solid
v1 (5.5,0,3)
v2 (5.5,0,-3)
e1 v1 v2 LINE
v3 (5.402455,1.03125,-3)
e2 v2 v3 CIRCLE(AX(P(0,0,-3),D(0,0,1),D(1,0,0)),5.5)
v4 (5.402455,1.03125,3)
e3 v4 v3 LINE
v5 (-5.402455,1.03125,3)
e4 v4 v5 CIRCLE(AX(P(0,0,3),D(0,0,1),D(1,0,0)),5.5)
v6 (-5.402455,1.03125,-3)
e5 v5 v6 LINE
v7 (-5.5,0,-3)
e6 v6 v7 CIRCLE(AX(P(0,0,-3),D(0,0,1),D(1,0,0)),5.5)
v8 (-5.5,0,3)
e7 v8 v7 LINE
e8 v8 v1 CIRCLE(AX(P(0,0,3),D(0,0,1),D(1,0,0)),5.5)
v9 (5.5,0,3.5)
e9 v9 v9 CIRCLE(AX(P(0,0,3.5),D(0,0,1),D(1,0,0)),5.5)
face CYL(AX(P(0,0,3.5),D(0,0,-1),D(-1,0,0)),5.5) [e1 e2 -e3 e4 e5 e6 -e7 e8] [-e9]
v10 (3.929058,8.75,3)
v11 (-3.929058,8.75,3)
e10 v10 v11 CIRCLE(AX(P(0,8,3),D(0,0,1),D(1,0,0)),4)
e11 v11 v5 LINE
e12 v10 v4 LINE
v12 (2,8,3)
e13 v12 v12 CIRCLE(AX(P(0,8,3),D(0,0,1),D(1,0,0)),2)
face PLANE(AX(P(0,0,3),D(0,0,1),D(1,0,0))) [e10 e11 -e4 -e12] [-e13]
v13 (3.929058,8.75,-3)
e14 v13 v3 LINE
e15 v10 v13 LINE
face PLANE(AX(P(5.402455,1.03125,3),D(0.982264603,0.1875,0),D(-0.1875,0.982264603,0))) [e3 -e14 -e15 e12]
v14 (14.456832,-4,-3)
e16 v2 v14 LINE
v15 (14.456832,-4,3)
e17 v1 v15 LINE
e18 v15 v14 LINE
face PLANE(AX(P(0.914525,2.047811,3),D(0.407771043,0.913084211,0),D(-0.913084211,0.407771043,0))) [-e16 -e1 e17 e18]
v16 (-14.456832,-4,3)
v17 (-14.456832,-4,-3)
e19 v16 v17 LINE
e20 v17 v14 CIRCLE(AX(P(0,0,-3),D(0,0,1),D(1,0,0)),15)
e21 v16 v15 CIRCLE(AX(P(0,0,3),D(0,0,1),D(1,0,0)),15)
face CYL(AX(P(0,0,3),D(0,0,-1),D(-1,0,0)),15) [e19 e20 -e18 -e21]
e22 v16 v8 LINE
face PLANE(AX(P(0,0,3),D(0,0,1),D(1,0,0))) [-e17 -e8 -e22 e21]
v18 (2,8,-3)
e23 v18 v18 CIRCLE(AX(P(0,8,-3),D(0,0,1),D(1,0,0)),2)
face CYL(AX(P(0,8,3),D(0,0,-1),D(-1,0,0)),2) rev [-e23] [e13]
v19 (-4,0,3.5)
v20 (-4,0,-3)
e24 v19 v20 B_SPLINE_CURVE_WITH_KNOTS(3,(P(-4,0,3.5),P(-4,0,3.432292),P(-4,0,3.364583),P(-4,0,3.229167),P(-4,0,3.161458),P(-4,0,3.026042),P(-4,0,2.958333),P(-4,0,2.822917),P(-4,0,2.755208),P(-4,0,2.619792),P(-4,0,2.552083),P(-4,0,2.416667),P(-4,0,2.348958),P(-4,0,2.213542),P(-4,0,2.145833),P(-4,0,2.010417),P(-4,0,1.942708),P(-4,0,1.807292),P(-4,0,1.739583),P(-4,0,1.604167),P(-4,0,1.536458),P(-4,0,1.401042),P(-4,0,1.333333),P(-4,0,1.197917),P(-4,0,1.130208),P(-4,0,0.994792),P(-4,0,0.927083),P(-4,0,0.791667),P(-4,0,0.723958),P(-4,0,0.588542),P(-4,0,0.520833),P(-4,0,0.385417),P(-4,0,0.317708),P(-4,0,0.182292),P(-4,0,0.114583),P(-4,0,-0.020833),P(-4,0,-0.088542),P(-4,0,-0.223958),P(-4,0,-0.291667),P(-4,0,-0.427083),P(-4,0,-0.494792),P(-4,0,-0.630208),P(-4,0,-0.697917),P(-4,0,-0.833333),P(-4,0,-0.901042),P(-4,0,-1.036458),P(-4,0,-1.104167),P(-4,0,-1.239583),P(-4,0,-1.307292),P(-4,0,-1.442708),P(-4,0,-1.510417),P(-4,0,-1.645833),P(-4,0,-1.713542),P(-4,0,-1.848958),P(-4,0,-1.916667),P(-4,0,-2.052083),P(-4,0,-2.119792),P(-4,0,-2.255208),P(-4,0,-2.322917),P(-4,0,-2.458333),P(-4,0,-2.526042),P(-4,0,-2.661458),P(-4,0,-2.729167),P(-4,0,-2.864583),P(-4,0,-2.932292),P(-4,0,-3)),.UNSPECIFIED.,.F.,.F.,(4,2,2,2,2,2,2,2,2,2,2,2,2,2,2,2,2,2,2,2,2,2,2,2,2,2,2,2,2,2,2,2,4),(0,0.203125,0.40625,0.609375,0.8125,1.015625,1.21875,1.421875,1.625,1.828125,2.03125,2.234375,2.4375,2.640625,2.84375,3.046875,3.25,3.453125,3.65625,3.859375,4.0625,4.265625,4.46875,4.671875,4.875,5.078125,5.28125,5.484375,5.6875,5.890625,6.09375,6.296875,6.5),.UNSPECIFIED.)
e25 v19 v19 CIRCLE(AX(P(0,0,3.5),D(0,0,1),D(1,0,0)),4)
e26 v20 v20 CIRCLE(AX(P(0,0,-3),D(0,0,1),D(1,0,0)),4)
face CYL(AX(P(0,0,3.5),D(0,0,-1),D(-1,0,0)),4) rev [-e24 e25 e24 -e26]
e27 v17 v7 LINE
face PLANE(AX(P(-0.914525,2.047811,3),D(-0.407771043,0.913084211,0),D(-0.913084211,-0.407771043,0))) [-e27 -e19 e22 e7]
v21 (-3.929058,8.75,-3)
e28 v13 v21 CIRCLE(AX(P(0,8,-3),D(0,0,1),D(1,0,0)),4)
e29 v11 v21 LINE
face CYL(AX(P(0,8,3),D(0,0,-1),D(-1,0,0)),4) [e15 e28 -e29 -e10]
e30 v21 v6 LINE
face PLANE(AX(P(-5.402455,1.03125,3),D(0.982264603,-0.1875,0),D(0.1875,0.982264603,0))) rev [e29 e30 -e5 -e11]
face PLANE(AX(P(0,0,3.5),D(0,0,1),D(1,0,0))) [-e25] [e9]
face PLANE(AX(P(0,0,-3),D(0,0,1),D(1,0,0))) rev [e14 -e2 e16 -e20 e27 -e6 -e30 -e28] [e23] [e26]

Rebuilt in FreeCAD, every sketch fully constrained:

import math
import FreeCAD as App
import Part
import Sketcher
from FreeCAD import Vector

doc = App.newDocument("Part")
body = doc.addObject("PartDesign::Body", "Body")

sketch1 = body.newObject("Sketcher::SketchObject", "Sketch")
sketch1.AttachmentSupport = (doc.getObject("XY_Plane"), [""])
sketch1.MapMode = "FlatFace"
sketch1.addGeometry([
    Part.LineSegment(Vector(-6, 0, 0), Vector(-14, -4, 0)),
    Part.ArcOfCircle(Part.Circle(Vector(0, 0, 0), Vector(0, 0, 1), 15), math.radians(-165), math.radians(-15)),
    Part.LineSegment(Vector(14, -4, 0), Vector(6, 0, 0)),
    Part.ArcOfCircle(Part.Circle(Vector(0, 0, 0), Vector(0, 0, 1), 6), math.radians(180), math.radians(360)),
], False)
sketch1.addConstraint([
    Sketcher.Constraint("Coincident", 0, 2, 1, 1),
    Sketcher.Constraint("Coincident", 1, 2, 2, 1),
    Sketcher.Constraint("Coincident", 2, 2, 3, 2),
    Sketcher.Constraint("Coincident", 3, 1, 0, 1),
    Sketcher.Constraint("Coincident", 1, 3, -1, 1),
    Sketcher.Constraint("Coincident", 3, 3, -1, 1),
    Sketcher.Constraint("PointOnObject", 2, 2, -1),
    Sketcher.Constraint("PointOnObject", 3, 1, -1),
    Sketcher.Constraint("Horizontal", 0, 2, 1, 2),
    Sketcher.Constraint("Radius", 1, 15.0),
    Sketcher.Constraint("Radius", 3, 5.5),
    Sketcher.Constraint("DistanceY", 0, 2, -1, 1, 4.0),
])
pad1 = body.newObject("PartDesign::Pad", "Pad")
pad1.Profile = sketch1
pad1.Length = 6
pad1.Midplane = True
body2 = doc.addObject("PartDesign::Body", "Body001")

sketch2 = body2.newObject("Sketcher::SketchObject", "Sketch001")
sketch2.AttachmentSupport = (doc.getObject("XY_Plane001"), [""])
sketch2.MapMode = "FlatFace"
sketch2.addGeometry([
    Part.LineSegment(Vector(-3.9, 8.8, 0), Vector(-5.4, 1, 0)),
    Part.ArcOfCircle(Part.Circle(Vector(0, 0, 0), Vector(0, 0, 1), 5.5), math.radians(11), math.radians(169)),
    Part.LineSegment(Vector(5.4, 1, 0), Vector(3.9, 8.8, 0)),
    Part.ArcOfCircle(Part.Circle(Vector(0, 8, 0), Vector(0, 0, 1), 4), math.radians(11), math.radians(169)),
    Part.Circle(Vector(0, 8, 0), Vector(0, 0, 1), 2),
], False)
sketch2.addConstraint([
    Sketcher.Constraint("Tangent", 0, 2, 1, 2),
    Sketcher.Constraint("Tangent", 1, 1, 2, 1),
    Sketcher.Constraint("Tangent", 2, 2, 3, 1),
    Sketcher.Constraint("Tangent", 3, 2, 0, 1),
    Sketcher.Constraint("Coincident", 1, 3, -1, 1),
    Sketcher.Constraint("Coincident", 4, 3, 3, 3),
    Sketcher.Constraint("PointOnObject", 3, 3, -2),
    Sketcher.Constraint("Diameter", 4, 4.0),
    Sketcher.Constraint("Radius", 3, 4.0),
    Sketcher.Constraint("Radius", 1, 5.5),
    Sketcher.Constraint("DistanceY", -1, 1, 3, 3, 8.0),
])
pad2 = body2.newObject("PartDesign::Pad", "Pad001")
pad2.Profile = sketch2
pad2.Length = 6
pad2.Midplane = True
body.AllowCompound = True
doc.recompute()

boolean = body.newObject("PartDesign::Boolean", "Boolean")
boolean.Type = "Fuse"
boolean.addObjects([body2])

sketch3 = body.newObject("Sketcher::SketchObject", "Sketch002")
sketch3.AttachmentSupport = (doc.getObject("XY_Plane"), [""])
sketch3.MapMode = "FlatFace"
sketch3.AttachmentOffset = App.Placement(Vector(0, 0, 3.5), App.Rotation())
sketch3.addGeometry([
    Part.Circle(Vector(0, 0, 0), Vector(0, 0, 1), 5.5),
    Part.Circle(Vector(0, 0, 0), Vector(0, 0, 1), 4),
], False)
sketch3.addConstraint([
    Sketcher.Constraint("Coincident", 0, 3, -1, 1),
    Sketcher.Constraint("Coincident", 1, 3, -1, 1),
    Sketcher.Constraint("Diameter", 0, 11.0),
    Sketcher.Constraint("Diameter", 1, 8.0),
])
pad3 = body.newObject("PartDesign::Pad", "Pad002")
pad3.Profile = sketch3
pad3.Length = 6.5
pad3.Reversed = True

doc.recompute()
